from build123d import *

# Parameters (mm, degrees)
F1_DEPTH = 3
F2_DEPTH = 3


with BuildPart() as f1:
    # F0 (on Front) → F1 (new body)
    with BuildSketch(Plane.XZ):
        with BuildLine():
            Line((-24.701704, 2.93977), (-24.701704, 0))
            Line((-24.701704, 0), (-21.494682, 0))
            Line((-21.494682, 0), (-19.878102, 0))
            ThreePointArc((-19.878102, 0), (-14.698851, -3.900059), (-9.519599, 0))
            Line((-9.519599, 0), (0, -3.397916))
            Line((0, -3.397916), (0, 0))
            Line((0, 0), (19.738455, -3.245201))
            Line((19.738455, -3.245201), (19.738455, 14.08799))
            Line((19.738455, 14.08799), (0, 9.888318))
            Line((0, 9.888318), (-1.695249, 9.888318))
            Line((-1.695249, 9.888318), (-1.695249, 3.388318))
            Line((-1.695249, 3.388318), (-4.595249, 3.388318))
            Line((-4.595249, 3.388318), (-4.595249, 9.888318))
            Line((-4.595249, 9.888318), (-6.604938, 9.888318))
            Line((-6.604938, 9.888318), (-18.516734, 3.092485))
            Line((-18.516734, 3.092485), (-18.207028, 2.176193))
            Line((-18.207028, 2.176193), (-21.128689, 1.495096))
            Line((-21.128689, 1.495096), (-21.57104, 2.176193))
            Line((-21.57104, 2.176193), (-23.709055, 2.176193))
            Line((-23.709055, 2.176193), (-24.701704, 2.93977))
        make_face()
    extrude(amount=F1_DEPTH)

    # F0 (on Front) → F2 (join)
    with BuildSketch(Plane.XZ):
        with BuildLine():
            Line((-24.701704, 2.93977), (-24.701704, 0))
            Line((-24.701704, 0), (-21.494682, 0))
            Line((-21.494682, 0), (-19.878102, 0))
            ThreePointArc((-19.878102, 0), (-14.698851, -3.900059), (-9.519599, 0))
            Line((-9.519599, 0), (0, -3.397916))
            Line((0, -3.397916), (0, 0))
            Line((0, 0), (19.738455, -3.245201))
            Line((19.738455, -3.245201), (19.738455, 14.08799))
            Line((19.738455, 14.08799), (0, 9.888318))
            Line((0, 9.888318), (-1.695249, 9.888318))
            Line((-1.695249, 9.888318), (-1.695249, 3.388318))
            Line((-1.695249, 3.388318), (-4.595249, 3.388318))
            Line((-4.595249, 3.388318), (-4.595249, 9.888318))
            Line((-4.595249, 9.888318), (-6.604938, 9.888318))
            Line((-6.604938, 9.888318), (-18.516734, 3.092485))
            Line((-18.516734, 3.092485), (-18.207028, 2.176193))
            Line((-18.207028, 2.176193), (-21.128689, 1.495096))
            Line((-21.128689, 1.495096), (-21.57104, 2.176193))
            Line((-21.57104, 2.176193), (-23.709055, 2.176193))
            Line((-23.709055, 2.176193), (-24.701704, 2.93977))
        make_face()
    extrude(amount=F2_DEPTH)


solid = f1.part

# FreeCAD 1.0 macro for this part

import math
import FreeCAD as App
import Part
import Sketcher
from FreeCAD import Vector

doc = App.newDocument("Part")
body = doc.addObject("PartDesign::Body", "Body")

# Sketch on XZ plane
sketch1 = body.newObject("Sketcher::SketchObject", "Sketch")
sketch1.AttachmentSupport = (doc.getObject("XZ_Plane"), [""])
sketch1.MapMode = "FlatFace"
sketch1.addGeometry([
    Part.LineSegment(Vector(-24.7, 2.9, 0), Vector(-24.7, 0, 0)),  # 0
    Part.LineSegment(Vector(-24.7, 0, 0), Vector(-19.9, 0, 0)),  # 1
    Part.ArcOfCircle(Part.Circle(Vector(-14.7, 1.5, 0), Vector(0, 0, 1), 5.4), math.radians(-164), math.radians(-16)),  # 2
    Part.LineSegment(Vector(-9.5, 0, 0), Vector(0, -3.4, 0)),  # 3
    Part.LineSegment(Vector(0, -3.4, 0), Vector(0, 0, 0)),  # 4
    Part.LineSegment(Vector(0, 0, 0), Vector(19.7, -3.2, 0)),  # 5
    Part.LineSegment(Vector(19.7, -3.2, 0), Vector(19.7, 14.1, 0)),  # 6
    Part.LineSegment(Vector(19.7, 14.1, 0), Vector(0, 9.9, 0)),  # 7
    Part.LineSegment(Vector(0, 9.9, 0), Vector(-1.7, 9.9, 0)),  # 8
    Part.LineSegment(Vector(-1.7, 9.9, 0), Vector(-1.7, 3.4, 0)),  # 9
    Part.LineSegment(Vector(-1.7, 3.4, 0), Vector(-4.6, 3.4, 0)),  # 10
    Part.LineSegment(Vector(-4.6, 3.4, 0), Vector(-4.6, 9.9, 0)),  # 11
    Part.LineSegment(Vector(-4.6, 9.9, 0), Vector(-6.6, 9.9, 0)),  # 12
    Part.LineSegment(Vector(-6.6, 9.9, 0), Vector(-18.5, 3.1, 0)),  # 13
    Part.LineSegment(Vector(-18.5, 3.1, 0), Vector(-18.2, 2.2, 0)),  # 14
    Part.LineSegment(Vector(-18.2, 2.2, 0), Vector(-21.1, 1.5, 0)),  # 15
    Part.LineSegment(Vector(-21.1, 1.5, 0), Vector(-21.6, 2.2, 0)),  # 16
    Part.LineSegment(Vector(-21.6, 2.2, 0), Vector(-23.7, 2.2, 0)),  # 17
    Part.LineSegment(Vector(-23.7, 2.2, 0), Vector(-24.7, 2.9, 0)),  # 18
], False)
sketch1.addConstraint([
    Sketcher.Constraint("Coincident", 0, 2, 1, 1),
    Sketcher.Constraint("Coincident", 1, 2, 2, 1),
    Sketcher.Constraint("Coincident", 2, 2, 3, 1),
    Sketcher.Constraint("Coincident", 3, 2, 4, 1),
    Sketcher.Constraint("Coincident", 4, 2, 5, 1),
    Sketcher.Constraint("Coincident", 5, 2, 6, 1),
    Sketcher.Constraint("Coincident", 6, 2, 7, 1),
    Sketcher.Constraint("Coincident", 7, 2, 8, 1),
    Sketcher.Constraint("Coincident", 8, 2, 9, 1),
    Sketcher.Constraint("Coincident", 9, 2, 10, 1),
    Sketcher.Constraint("Coincident", 10, 2, 11, 1),
    Sketcher.Constraint("Coincident", 11, 2, 12, 1),
    Sketcher.Constraint("Coincident", 12, 2, 13, 1),
    Sketcher.Constraint("Coincident", 13, 2, 14, 1),
    Sketcher.Constraint("Coincident", 14, 2, 15, 1),
    Sketcher.Constraint("Coincident", 15, 2, 16, 1),
    Sketcher.Constraint("Coincident", 16, 2, 17, 1),
    Sketcher.Constraint("Coincident", 17, 2, 18, 1),
    Sketcher.Constraint("Coincident", 18, 2, 0, 1),
    Sketcher.Constraint("Vertical", 0),
    Sketcher.Constraint("Horizontal", 1),
    Sketcher.Constraint("Vertical", 4),
    Sketcher.Constraint("Vertical", 6),
    Sketcher.Constraint("Horizontal", 8),
    Sketcher.Constraint("Vertical", 9),
    Sketcher.Constraint("Horizontal", 10),
    Sketcher.Constraint("Vertical", 11),
    Sketcher.Constraint("Horizontal", 12),
    Sketcher.Constraint("Horizontal", 17),
    Sketcher.Constraint("Coincident", 4, 2, -1, 1),
    Sketcher.Constraint("PointOnObject", 0, 2, -1),
    Sketcher.Constraint("PointOnObject", 2, 2, -1),
    Sketcher.Constraint("PointOnObject", 7, 2, -2),
    Sketcher.Constraint("Horizontal", 8, 2, 11, 2),
    Sketcher.Constraint("Horizontal", 14, 2, 16, 2),
    Sketcher.Constraint("Distance", 15, 2.999999),
    Sketcher.Constraint("DistanceX", 10, 2, 10, 1, 2.9),
    Sketcher.Constraint("DistanceY", 9, 2, 9, 1, 6.5),
    Sketcher.Constraint("Radius", 2, 5.389035),
    Sketcher.Constraint("DistanceX", 8, 2, 8, 1, 1.695249),
    Sketcher.Constraint("DistanceX", 12, 2, 12, 1, 2.009689),
    Sketcher.Constraint("DistanceY", 0, 2, 0, 1, 2.93977),
    Sketcher.Constraint("DistanceY", 6, 1, 6, 2, 17.333191),
    Sketcher.Constraint("DistanceX", 1, 2, -1, 1, 19.878102),
    Sketcher.Constraint("DistanceX", 2, 2, -1, 1, 9.519599),
    Sketcher.Constraint("DistanceY", 5, 2, -1, 1, 3.245201),
    Sketcher.Constraint("Distance", 3, 10.107848),
    Sketcher.Constraint("Distance", 5, 20.003448),
    Sketcher.Constraint("Distance", 18, 1.252359),
    Sketcher.Constraint("DistanceX", 1, 1, 1, 2, 4.823602),
    Sketcher.Constraint("DistanceX", 17, 2, 17, 1, 2.138015),
    Sketcher.Constraint("DistanceX", 14, 2, -1, 1, 18.207028),
    Sketcher.Constraint("DistanceX", 15, 2, -1, 1, 21.128689),
    Sketcher.Constraint("DistanceX", 16, 2, -1, 1, 21.57104),
    Sketcher.Constraint("DistanceY", 7, 2, 6, 2, 4.199672),
    Sketcher.Constraint("DistanceY", 2, 3, 13, 2, 1.603509),
    Sketcher.Constraint("DistanceX", 0, 2, 13, 2, 6.18497),
])
pad1 = body.newObject("PartDesign::Pad", "Pad")
pad1.Profile = sketch1
pad1.Length = 3

# Sketch on XZ plane
sketch2 = body.newObject("Sketcher::SketchObject", "Sketch001")
sketch2.AttachmentSupport = (doc.getObject("XZ_Plane"), [""])
sketch2.MapMode = "FlatFace"
sketch2.addGeometry([
    Part.LineSegment(Vector(-24.7, 2.9, 0), Vector(-24.7, 0, 0)),  # 0
    Part.LineSegment(Vector(-24.7, 0, 0), Vector(-19.9, 0, 0)),  # 1
    Part.ArcOfCircle(Part.Circle(Vector(-14.7, 1.5, 0), Vector(0, 0, 1), 5.4), math.radians(-164), math.radians(-16)),  # 2
    Part.LineSegment(Vector(-9.5, 0, 0), Vector(0, -3.4, 0)),  # 3
    Part.LineSegment(Vector(0, -3.4, 0), Vector(0, 0, 0)),  # 4
    Part.LineSegment(Vector(0, 0, 0), Vector(19.7, -3.2, 0)),  # 5
    Part.LineSegment(Vector(19.7, -3.2, 0), Vector(19.7, 14.1, 0)),  # 6
    Part.LineSegment(Vector(19.7, 14.1, 0), Vector(0, 9.9, 0)),  # 7
    Part.LineSegment(Vector(0, 9.9, 0), Vector(-1.7, 9.9, 0)),  # 8
    Part.LineSegment(Vector(-1.7, 9.9, 0), Vector(-1.7, 3.4, 0)),  # 9
    Part.LineSegment(Vector(-1.7, 3.4, 0), Vector(-4.6, 3.4, 0)),  # 10
    Part.LineSegment(Vector(-4.6, 3.4, 0), Vector(-4.6, 9.9, 0)),  # 11
    Part.LineSegment(Vector(-4.6, 9.9, 0), Vector(-6.6, 9.9, 0)),  # 12
    Part.LineSegment(Vector(-6.6, 9.9, 0), Vector(-18.5, 3.1, 0)),  # 13
    Part.LineSegment(Vector(-18.5, 3.1, 0), Vector(-18.2, 2.2, 0)),  # 14
    Part.LineSegment(Vector(-18.2, 2.2, 0), Vector(-21.1, 1.5, 0)),  # 15
    Part.LineSegment(Vector(-21.1, 1.5, 0), Vector(-21.6, 2.2, 0)),  # 16
    Part.LineSegment(Vector(-21.6, 2.2, 0), Vector(-23.7, 2.2, 0)),  # 17
    Part.LineSegment(Vector(-23.7, 2.2, 0), Vector(-24.7, 2.9, 0)),  # 18
], False)
sketch2.addConstraint([
    Sketcher.Constraint("Coincident", 0, 2, 1, 1),
    Sketcher.Constraint("Coincident", 1, 2, 2, 1),
    Sketcher.Constraint("Coincident", 2, 2, 3, 1),
    Sketcher.Constraint("Coincident", 3, 2, 4, 1),
    Sketcher.Constraint("Coincident", 4, 2, 5, 1),
    Sketcher.Constraint("Coincident", 5, 2, 6, 1),
    Sketcher.Constraint("Coincident", 6, 2, 7, 1),
    Sketcher.Constraint("Coincident", 7, 2, 8, 1),
    Sketcher.Constraint("Coincident", 8, 2, 9, 1),
    Sketcher.Constraint("Coincident", 9, 2, 10, 1),
    Sketcher.Constraint("Coincident", 10, 2, 11, 1),
    Sketcher.Constraint("Coincident", 11, 2, 12, 1),
    Sketcher.Constraint("Coincident", 12, 2, 13, 1),
    Sketcher.Constraint("Coincident", 13, 2, 14, 1),
    Sketcher.Constraint("Coincident", 14, 2, 15, 1),
    Sketcher.Constraint("Coincident", 15, 2, 16, 1),
    Sketcher.Constraint("Coincident", 16, 2, 17, 1),
    Sketcher.Constraint("Coincident", 17, 2, 18, 1),
    Sketcher.Constraint("Coincident", 18, 2, 0, 1),
    Sketcher.Constraint("Vertical", 0),
    Sketcher.Constraint("Horizontal", 1),
    Sketcher.Constraint("Vertical", 4),
    Sketcher.Constraint("Vertical", 6),
    Sketcher.Constraint("Horizontal", 8),
    Sketcher.Constraint("Vertical", 9),
    Sketcher.Constraint("Horizontal", 10),
    Sketcher.Constraint("Vertical", 11),
    Sketcher.Constraint("Horizontal", 12),
    Sketcher.Constraint("Horizontal", 17),
    Sketcher.Constraint("Coincident", 4, 2, -1, 1),
    Sketcher.Constraint("PointOnObject", 0, 2, -1),
    Sketcher.Constraint("PointOnObject", 2, 2, -1),
    Sketcher.Constraint("PointOnObject", 7, 2, -2),
    Sketcher.Constraint("Horizontal", 8, 2, 11, 2),
    Sketcher.Constraint("Horizontal", 14, 2, 16, 2),
    Sketcher.Constraint("Distance", 15, 2.999999),
    Sketcher.Constraint("DistanceX", 10, 2, 10, 1, 2.9),
    Sketcher.Constraint("DistanceY", 9, 2, 9, 1, 6.5),
    Sketcher.Constraint("Radius", 2, 5.389035),
    Sketcher.Constraint("DistanceX", 8, 2, 8, 1, 1.695249),
    Sketcher.Constraint("DistanceX", 12, 2, 12, 1, 2.009689),
    Sketcher.Constraint("DistanceY", 0, 2, 0, 1, 2.93977),
    Sketcher.Constraint("DistanceY", 6, 1, 6, 2, 17.333191),
    Sketcher.Constraint("DistanceX", 1, 2, -1, 1, 19.878102),
    Sketcher.Constraint("DistanceX", 2, 2, -1, 1, 9.519599),
    Sketcher.Constraint("DistanceY", 5, 2, -1, 1, 3.245201),
    Sketcher.Constraint("Distance", 3, 10.107848),
    Sketcher.Constraint("Distance", 5, 20.003448),
    Sketcher.Constraint("Distance", 18, 1.252359),
    Sketcher.Constraint("DistanceX", 1, 1, 1, 2, 4.823602),
    Sketcher.Constraint("DistanceX", 17, 2, 17, 1, 2.138015),
    Sketcher.Constraint("DistanceX", 14, 2, -1, 1, 18.207028),
    Sketcher.Constraint("DistanceX", 15, 2, -1, 1, 21.128689),
    Sketcher.Constraint("DistanceX", 16, 2, -1, 1, 21.57104),
    Sketcher.Constraint("DistanceY", 7, 2, 6, 2, 4.199672),
    Sketcher.Constraint("DistanceY", 2, 3, 13, 2, 1.603509),
    Sketcher.Constraint("DistanceX", 0, 2, 13, 2, 6.18497),
])
pad2 = body.newObject("PartDesign::Pad", "Pad001")
pad2.Profile = sketch2
pad2.Length = 3

doc.recompute()
